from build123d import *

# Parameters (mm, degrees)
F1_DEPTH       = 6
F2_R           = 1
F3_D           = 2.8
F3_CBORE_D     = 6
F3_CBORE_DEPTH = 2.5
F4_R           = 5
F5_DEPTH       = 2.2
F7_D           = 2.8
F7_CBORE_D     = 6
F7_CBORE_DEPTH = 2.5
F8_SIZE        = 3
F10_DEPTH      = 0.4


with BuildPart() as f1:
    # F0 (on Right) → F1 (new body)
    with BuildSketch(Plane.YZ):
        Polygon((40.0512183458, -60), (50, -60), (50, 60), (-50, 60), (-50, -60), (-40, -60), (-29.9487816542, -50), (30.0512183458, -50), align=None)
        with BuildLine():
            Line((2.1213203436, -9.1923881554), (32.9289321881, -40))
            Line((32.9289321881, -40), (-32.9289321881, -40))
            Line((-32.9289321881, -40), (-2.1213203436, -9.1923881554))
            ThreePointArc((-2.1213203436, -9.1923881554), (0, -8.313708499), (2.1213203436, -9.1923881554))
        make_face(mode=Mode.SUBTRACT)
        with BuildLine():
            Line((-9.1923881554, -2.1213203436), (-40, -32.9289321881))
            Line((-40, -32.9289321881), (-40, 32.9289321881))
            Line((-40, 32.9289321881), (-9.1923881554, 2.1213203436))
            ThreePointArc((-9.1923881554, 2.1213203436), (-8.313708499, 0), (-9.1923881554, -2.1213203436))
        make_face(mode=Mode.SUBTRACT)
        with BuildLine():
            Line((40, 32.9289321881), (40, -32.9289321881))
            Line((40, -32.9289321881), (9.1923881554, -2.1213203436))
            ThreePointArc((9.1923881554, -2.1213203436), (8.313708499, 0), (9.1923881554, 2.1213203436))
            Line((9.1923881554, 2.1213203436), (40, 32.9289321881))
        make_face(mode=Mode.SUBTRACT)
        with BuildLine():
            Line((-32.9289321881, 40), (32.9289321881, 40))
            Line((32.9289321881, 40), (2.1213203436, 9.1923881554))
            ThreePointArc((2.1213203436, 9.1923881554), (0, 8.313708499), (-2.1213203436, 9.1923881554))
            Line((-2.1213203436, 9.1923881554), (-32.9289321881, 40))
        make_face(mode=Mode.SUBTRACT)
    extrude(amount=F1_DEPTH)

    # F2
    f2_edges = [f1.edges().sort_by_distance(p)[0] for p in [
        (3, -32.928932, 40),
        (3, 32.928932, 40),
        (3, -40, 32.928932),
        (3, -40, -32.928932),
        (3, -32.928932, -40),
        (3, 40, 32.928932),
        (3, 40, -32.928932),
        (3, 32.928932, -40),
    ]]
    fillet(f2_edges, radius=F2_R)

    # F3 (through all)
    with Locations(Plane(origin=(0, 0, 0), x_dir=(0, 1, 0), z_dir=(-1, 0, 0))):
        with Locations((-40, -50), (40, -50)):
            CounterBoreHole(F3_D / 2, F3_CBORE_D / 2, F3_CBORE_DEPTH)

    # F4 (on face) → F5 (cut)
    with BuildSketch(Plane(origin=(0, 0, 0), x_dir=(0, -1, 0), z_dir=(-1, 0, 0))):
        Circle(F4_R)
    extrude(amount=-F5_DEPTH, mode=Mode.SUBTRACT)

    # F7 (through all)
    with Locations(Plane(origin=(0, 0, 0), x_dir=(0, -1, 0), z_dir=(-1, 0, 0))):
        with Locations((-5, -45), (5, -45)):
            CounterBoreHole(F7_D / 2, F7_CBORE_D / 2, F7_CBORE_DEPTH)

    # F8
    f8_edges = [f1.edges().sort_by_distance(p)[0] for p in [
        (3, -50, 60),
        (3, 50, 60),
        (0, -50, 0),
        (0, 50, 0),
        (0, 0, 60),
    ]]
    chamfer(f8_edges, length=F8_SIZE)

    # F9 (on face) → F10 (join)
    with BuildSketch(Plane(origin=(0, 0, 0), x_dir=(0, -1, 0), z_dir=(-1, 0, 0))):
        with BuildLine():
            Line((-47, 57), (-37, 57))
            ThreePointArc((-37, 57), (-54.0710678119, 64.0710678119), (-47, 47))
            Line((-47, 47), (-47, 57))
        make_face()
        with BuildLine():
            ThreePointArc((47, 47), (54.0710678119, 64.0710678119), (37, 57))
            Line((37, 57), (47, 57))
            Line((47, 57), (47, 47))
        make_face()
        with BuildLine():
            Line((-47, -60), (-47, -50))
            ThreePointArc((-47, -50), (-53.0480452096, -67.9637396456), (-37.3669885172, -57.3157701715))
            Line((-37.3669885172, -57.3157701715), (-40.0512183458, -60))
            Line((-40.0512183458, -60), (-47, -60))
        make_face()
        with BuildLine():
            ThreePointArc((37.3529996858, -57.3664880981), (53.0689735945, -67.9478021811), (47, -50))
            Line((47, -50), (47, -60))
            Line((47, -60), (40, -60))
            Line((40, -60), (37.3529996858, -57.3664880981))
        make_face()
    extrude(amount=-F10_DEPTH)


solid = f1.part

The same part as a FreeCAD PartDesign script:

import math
import FreeCAD as App
import Part
import Sketcher
from FreeCAD import Vector
Q = App.Units.Quantity


def edges_at(feature, points):
    """Names of the edges that pass closest to the given points."""
    edges = feature.Shape.Edges
    near = lambda p: min(range(len(edges)), key=lambda i: edges[i].distToShape(Part.Vertex(*p))[0])
    return sorted({f"Edge{near(p) + 1}" for p in points})

doc = App.newDocument("Part")
body = doc.addObject("PartDesign::Body", "Body")

# Sketch on YZ plane
sketch1 = body.newObject("Sketcher::SketchObject", "Sketch")
sketch1.AttachmentSupport = (doc.getObject("YZ_Plane"), [""])
sketch1.MapMode = "FlatFace"
sketch1.addGeometry([
    Part.LineSegment(Vector(40.051218, -60, 0), Vector(50, -60, 0)),  # 0
    Part.LineSegment(Vector(50, -60, 0), Vector(50, 60, 0)),  # 1
    Part.LineSegment(Vector(50, 60, 0), Vector(-50, 60, 0)),  # 2
    Part.LineSegment(Vector(-50, 60, 0), Vector(-50, -60, 0)),  # 3
    Part.LineSegment(Vector(-50, -60, 0), Vector(-40, -60, 0)),  # 4
    Part.LineSegment(Vector(-40, -60, 0), Vector(-29.948782, -50, 0)),  # 5
    Part.LineSegment(Vector(-29.948782, -50, 0), Vector(30.051218, -50, 0)),  # 6
    Part.LineSegment(Vector(30.051218, -50, 0), Vector(40.051218, -60, 0)),  # 7
    Part.ArcOfCircle(Part.Circle(Vector(0, -11.313708, 0), Vector(0, 0, 1), 3), math.radians(45), math.radians(135)),  # 8
    Part.LineSegment(Vector(2.12132, -9.192388, 0), Vector(32.928932, -40, 0)),  # 9
    Part.LineSegment(Vector(32.928932, -40, 0), Vector(-32.928932, -40, 0)),  # 10
    Part.LineSegment(Vector(-32.928932, -40, 0), Vector(-2.12132, -9.192388, 0)),  # 11
    Part.ArcOfCircle(Part.Circle(Vector(-11.313708, 0, 0), Vector(0, 0, 1), 3), math.radians(-45), math.radians(45)),  # 12
    Part.LineSegment(Vector(-9.192388, -2.12132, 0), Vector(-40, -32.928932, 0)),  # 13
    Part.LineSegment(Vector(-40, -32.928932, 0), Vector(-40, 32.928932, 0)),  # 14
    Part.LineSegment(Vector(-40, 32.928932, 0), Vector(-9.192388, 2.12132, 0)),  # 15
    Part.LineSegment(Vector(9.192388, 2.12132, 0), Vector(40, 32.928932, 0)),  # 16
    Part.LineSegment(Vector(40, 32.928932, 0), Vector(40, -32.928932, 0)),  # 17
    Part.LineSegment(Vector(40, -32.928932, 0), Vector(9.192388, -2.12132, 0)),  # 18
    Part.ArcOfCircle(Part.Circle(Vector(11.313708, 0, 0), Vector(0, 0, 1), 3), math.radians(135), math.radians(225)),  # 19
    Part.LineSegment(Vector(-2.12132, 9.192388, 0), Vector(-32.928932, 40, 0)),  # 20
    Part.LineSegment(Vector(-32.928932, 40, 0), Vector(32.928932, 40, 0)),  # 21
    Part.LineSegment(Vector(32.928932, 40, 0), Vector(2.12132, 9.192388, 0)),  # 22
    Part.ArcOfCircle(Part.Circle(Vector(0, 11.313708, 0), Vector(0, 0, 1), 3), math.radians(-135), math.radians(-45)),  # 23
], False)
sketch1.addConstraint([
    Sketcher.Constraint("Coincident", 0, 2, 1, 1),
    Sketcher.Constraint("Coincident", 1, 2, 2, 1),
    Sketcher.Constraint("Coincident", 2, 2, 3, 1),
    Sketcher.Constraint("Coincident", 3, 2, 4, 1),
    Sketcher.Constraint("Coincident", 4, 2, 5, 1),
    Sketcher.Constraint("Coincident", 5, 2, 6, 1),
    Sketcher.Constraint("Coincident", 6, 2, 7, 1),
    Sketcher.Constraint("Coincident", 7, 2, 0, 1),
    Sketcher.Constraint("Tangent", 8, 1, 9, 1),
    Sketcher.Constraint("Coincident", 9, 2, 10, 1),
    Sketcher.Constraint("Coincident", 10, 2, 11, 1),
    Sketcher.Constraint("Tangent", 11, 2, 8, 2),
    Sketcher.Constraint("Tangent", 12, 1, 13, 1),
    Sketcher.Constraint("Coincident", 13, 2, 14, 1),
    Sketcher.Constraint("Coincident", 14, 2, 15, 1),
    Sketcher.Constraint("Tangent", 15, 2, 12, 2),
    Sketcher.Constraint("Coincident", 16, 2, 17, 1),
    Sketcher.Constraint("Coincident", 17, 2, 18, 1),
    Sketcher.Constraint("Tangent", 18, 2, 19, 2),
    Sketcher.Constraint("Tangent", 19, 1, 16, 1),
    Sketcher.Constraint("Coincident", 20, 2, 21, 1),
    Sketcher.Constraint("Coincident", 21, 2, 22, 1),
    Sketcher.Constraint("Tangent", 22, 2, 23, 2),
    Sketcher.Constraint("Tangent", 23, 1, 20, 1),
    Sketcher.Constraint("Horizontal", 0),
    Sketcher.Constraint("Vertical", 1),
    Sketcher.Constraint("Horizontal", 2),
    Sketcher.Constraint("Vertical", 3),
    Sketcher.Constraint("Horizontal", 4),
    Sketcher.Constraint("Horizontal", 6),
    Sketcher.Constraint("Horizontal", 10),
    Sketcher.Constraint("Vertical", 14),
    Sketcher.Constraint("Vertical", 17),
    Sketcher.Constraint("Horizontal", 21),
    Sketcher.Constraint("Equal", 8, 12),
    Sketcher.Constraint("Equal", 12, 19),
    Sketcher.Constraint("Equal", 19, 23),
    Sketcher.Constraint("Symmetric", 12, 3, 19, 3, -1, 1),
    Sketcher.Constraint("Symmetric", 8, 3, 23, 3, -1, 1),
    Sketcher.Constraint("Symmetric", 0, 2, 2, 2, -1, 1),
    Sketcher.Constraint("Symmetric", 13, 2, 16, 2, -1, 1),
    Sketcher.Constraint("Symmetric", 9, 2, 20, 2, -1, 1),
    Sketcher.Constraint("Symmetric", 8, 1, 11, 2, -2),
    Sketcher.Constraint("Symmetric", 12, 1, 18, 2, -2),
    Sketcher.Constraint("Parallel", 7, 9),
    Sketcher.Constraint("Perpendicular", 9, 11),
    Sketcher.Constraint("Parallel", 11, 13),
    Sketcher.Constraint("Perpendicular", 13, 15),
    Sketcher.Constraint("Perpendicular", 20, 22),
    Sketcher.Constraint("Horizontal", 0, 2, 3, 2),
    Sketcher.Constraint("Vertical", 4, 2, 13, 2),
    Sketcher.Constraint("Equal", 21, 14),
    Sketcher.Constraint("Radius", 8, Q("3 mm")),
    Sketcher.Constraint("DistanceX", 2, 2, 2, 1, Q("100 mm")),
    Sketcher.Constraint("DistanceX", 4, 1, 4, 2, Q("10 mm")),
    Sketcher.Constraint("DistanceX", 6, 1, 6, 2, Q("60 mm")),
    Sketcher.Constraint("DistanceY", 1, 1, 1, 2, Q("120 mm")),
    Sketcher.Constraint("DistanceY", 5, 2, -1, 1, Q("50 mm")),
    Sketcher.Constraint("DistanceY", 9, 2, -1, 1, Q("40 mm")),
    Sketcher.Constraint("Distance", 5, Q("14.178399 mm")),
    Sketcher.Constraint("DistanceX", 10, 2, 10, 1, Q("65.857864 mm")),
])
pad1 = body.newObject("PartDesign::Pad", "Pad")
pad1.Profile = sketch1
pad1.Length = 6
doc.recompute()

fillet = body.newObject("PartDesign::Fillet", "Fillet")
fillet.Base = (pad1, edges_at(pad1, [
    (3, -32.929, 40),
    (3, 32.929, 40),
    (3, -40, 32.929),
    (3, -40, -32.929),
    (3, -32.929, -40),
    (3, 40, 32.929),
    (3, 40, -32.929),
    (3, 32.929, -40),
]))
fillet.Radius = 1

# Sketch on YZ plane
sketch2 = body.newObject("Sketcher::SketchObject", "Sketch001")
sketch2.AttachmentSupport = (doc.getObject("YZ_Plane"), [""])
sketch2.MapMode = "FlatFace"
sketch2.addGeometry([
    Part.Circle(Vector(-40, 50, 0), Vector(0, 0, 1), 1.4),
    Part.Circle(Vector(40, 50, 0), Vector(0, 0, 1), 1.4),
], False)
sketch2.addConstraint([
    Sketcher.Constraint("Equal", 0, 1),
    Sketcher.Constraint("Symmetric", 0, 3, 1, 3, -2),
    Sketcher.Constraint("Diameter", 0, Q("2.8 mm")),
    Sketcher.Constraint("DistanceX", 0, 3, -1, 1, Q("40 mm")),
    Sketcher.Constraint("DistanceY", -1, 1, 0, 3, Q("50 mm")),
])
doc.recompute()
hole = body.newObject("PartDesign::Hole", "Hole")
hole.Profile = sketch2
hole.ThreadType = "None"
hole.Diameter = 2.8
hole.DepthType = "ThroughAll"
hole.HoleCutType = "Counterbore"
hole.HoleCutDiameter = 6
hole.HoleCutDepth = 2.5
hole.Reversed = True

# Sketch on YZ plane
sketch3 = body.newObject("Sketcher::SketchObject", "Sketch002")
sketch3.AttachmentSupport = (doc.getObject("YZ_Plane"), [""])
sketch3.MapMode = "FlatFace"
sketch3.addGeometry(Part.Circle(Vector(0, 0, 0), Vector(0, 0, 1), 5), False)
sketch3.addConstraint([
    Sketcher.Constraint("Coincident", 0, 3, -1, 1),
    Sketcher.Constraint("Diameter", 0, Q("10 mm")),
])
pocket1 = body.newObject("PartDesign::Pocket", "Pocket")
pocket1.Profile = sketch3
pocket1.Length = 2.2
pocket1.Reversed = True

# Sketch on YZ plane
sketch4 = body.newObject("Sketcher::SketchObject", "Sketch003")
sketch4.AttachmentSupport = (doc.getObject("YZ_Plane"), [""])
sketch4.MapMode = "FlatFace"
sketch4.addGeometry([
    Part.Circle(Vector(5, -45, 0), Vector(0, 0, 1), 1.4),
    Part.Circle(Vector(-5, -45, 0), Vector(0, 0, 1), 1.4),
], False)
sketch4.addConstraint([
    Sketcher.Constraint("Equal", 0, 1),
    Sketcher.Constraint("Symmetric", 0, 3, 1, 3, -2),
    Sketcher.Constraint("Diameter", 0, Q("2.8 mm")),
    Sketcher.Constraint("DistanceX", -1, 1, 0, 3, Q("5 mm")),
    Sketcher.Constraint("DistanceY", 0, 3, -1, 1, Q("45 mm")),
])
doc.recompute()
hole2 = body.newObject("PartDesign::Hole", "Hole001")
hole2.Profile = sketch4
hole2.ThreadType = "None"
hole2.Diameter = 2.8
hole2.DepthType = "ThroughAll"
hole2.HoleCutType = "Counterbore"
hole2.HoleCutDiameter = 6
hole2.HoleCutDepth = 2.5
hole2.Reversed = True
doc.recompute()

chamfer = body.newObject("PartDesign::Chamfer", "Chamfer")
chamfer.Base = (hole2, edges_at(hole2, [
    (3, -50, 60),
    (3, 50, 60),
    (0, -50, 0),
    (0, 50, 0),
    (0, 0, 60),
]))
chamfer.Size = 3

# Sketch on YZ plane
sketch5 = body.newObject("Sketcher::SketchObject", "Sketch004")
sketch5.AttachmentSupport = (doc.getObject("YZ_Plane"), [""])
sketch5.MapMode = "FlatFace"
sketch5.addGeometry([
    Part.LineSegment(Vector(47, 57, 0), Vector(37, 57, 0)),  # 0
    Part.ArcOfCircle(Part.Circle(Vector(47, 57, 0), Vector(0, 0, 1), 10), math.radians(-90), math.radians(180)),  # 1
    Part.LineSegment(Vector(47, 47, 0), Vector(47, 57, 0)),  # 2
    Part.ArcOfCircle(Part.Circle(Vector(-47, 57, 0), Vector(0, 0, 1), 10), math.radians(0), math.radians(270)),  # 3
    Part.LineSegment(Vector(-37, 57, 0), Vector(-47, 57, 0)),  # 4
    Part.LineSegment(Vector(-47, 57, 0), Vector(-47, 47, 0)),  # 5
    Part.LineSegment(Vector(47, -60, 0), Vector(47, -50, 0)),  # 6
    Part.ArcOfCircle(Part.Circle(Vector(47, -60, 0), Vector(0, 0, 1), 10), math.radians(164.429553), math.radians(450)),  # 7
    Part.LineSegment(Vector(37.366989, -57.31577, 0), Vector(40.051218, -60, 0)),  # 8
    Part.LineSegment(Vector(40.051218, -60, 0), Vector(47, -60, 0)),  # 9
    Part.ArcOfCircle(Part.Circle(Vector(-47, -60, 0), Vector(0, 0, 1), 10), math.radians(90), math.radians(375.269003)),  # 10
    Part.LineSegment(Vector(-47, -50, 0), Vector(-47, -60, 0)),  # 11
    Part.LineSegment(Vector(-47, -60, 0), Vector(-40, -60, 0)),  # 12
    Part.LineSegment(Vector(-40, -60, 0), Vector(-37.353, -57.366488, 0)),  # 13
], False)
sketch5.addConstraint([
    Sketcher.Constraint("Coincident", 0, 2, 1, 2),
    Sketcher.Constraint("Coincident", 1, 1, 2, 1),
    Sketcher.Constraint("Coincident", 2, 2, 0, 1),
    Sketcher.Constraint("Coincident", 3, 1, 4, 1),
    Sketcher.Constraint("Coincident", 4, 2, 5, 1),
    Sketcher.Constraint("Coincident", 5, 2, 3, 2),
    Sketcher.Constraint("Coincident", 6, 2, 7, 2),
    Sketcher.Constraint("Coincident", 7, 1, 8, 1),
    Sketcher.Constraint("Coincident", 8, 2, 9, 1),
    Sketcher.Constraint("Coincident", 9, 2, 6, 1),
    Sketcher.Constraint("Coincident", 10, 1, 11, 1),
    Sketcher.Constraint("Coincident", 11, 2, 12, 1),
    Sketcher.Constraint("Coincident", 12, 2, 13, 1),
    Sketcher.Constraint("Coincident", 13, 2, 10, 2),
    Sketcher.Constraint("Horizontal", 0),
    Sketcher.Constraint("Vertical", 2),
    Sketcher.Constraint("Horizontal", 4),
    Sketcher.Constraint("Vertical", 5),
    Sketcher.Constraint("Vertical", 6),
    Sketcher.Constraint("Horizontal", 9),
    Sketcher.Constraint("Vertical", 11),
    Sketcher.Constraint("Horizontal", 12),
    Sketcher.Constraint("Coincident", 2, 2, 1, 3),
    Sketcher.Constraint("Coincident", 4, 2, 3, 3),
    Sketcher.Constraint("Coincident", 9, 2, 7, 3),
    Sketcher.Constraint("Coincident", 11, 2, 10, 3),
    Sketcher.Constraint("Equal", 1, 3),
    Sketcher.Constraint("Equal", 3, 7),
    Sketcher.Constraint("Equal", 7, 10),
    Sketcher.Constraint("Symmetric", 1, 3, 3, 3, -2),
    Sketcher.Constraint("Symmetric", 7, 3, 10, 3, -2),
    Sketcher.Constraint("Vertical", 1, 3, 7, 3),
    Sketcher.Constraint("Radius", 1, Q("10 mm")),
    Sketcher.Constraint("DistanceX", 12, 1, 12, 2, Q("7 mm")),
    Sketcher.Constraint("Angle", 8, Q("-45 deg")),
    Sketcher.Constraint("DistanceX", -1, 1, 1, 3, Q("47 mm")),
    Sketcher.Constraint("DistanceY", -1, 1, 1, 3, Q("57 mm")),
    Sketcher.Constraint("DistanceY", 7, 3, -1, 1, Q("60 mm")),
    Sketcher.Constraint("DistanceX", 13, 2, -1, 1, Q("37.353 mm")),
    Sketcher.Constraint("DistanceX", 9, 1, 9, 2, Q("6.948782 mm")),
])
pad2 = body.newObject("PartDesign::Pad", "Pad001")
pad2.Profile = sketch5
pad2.Length = 0.4

doc.recompute()
